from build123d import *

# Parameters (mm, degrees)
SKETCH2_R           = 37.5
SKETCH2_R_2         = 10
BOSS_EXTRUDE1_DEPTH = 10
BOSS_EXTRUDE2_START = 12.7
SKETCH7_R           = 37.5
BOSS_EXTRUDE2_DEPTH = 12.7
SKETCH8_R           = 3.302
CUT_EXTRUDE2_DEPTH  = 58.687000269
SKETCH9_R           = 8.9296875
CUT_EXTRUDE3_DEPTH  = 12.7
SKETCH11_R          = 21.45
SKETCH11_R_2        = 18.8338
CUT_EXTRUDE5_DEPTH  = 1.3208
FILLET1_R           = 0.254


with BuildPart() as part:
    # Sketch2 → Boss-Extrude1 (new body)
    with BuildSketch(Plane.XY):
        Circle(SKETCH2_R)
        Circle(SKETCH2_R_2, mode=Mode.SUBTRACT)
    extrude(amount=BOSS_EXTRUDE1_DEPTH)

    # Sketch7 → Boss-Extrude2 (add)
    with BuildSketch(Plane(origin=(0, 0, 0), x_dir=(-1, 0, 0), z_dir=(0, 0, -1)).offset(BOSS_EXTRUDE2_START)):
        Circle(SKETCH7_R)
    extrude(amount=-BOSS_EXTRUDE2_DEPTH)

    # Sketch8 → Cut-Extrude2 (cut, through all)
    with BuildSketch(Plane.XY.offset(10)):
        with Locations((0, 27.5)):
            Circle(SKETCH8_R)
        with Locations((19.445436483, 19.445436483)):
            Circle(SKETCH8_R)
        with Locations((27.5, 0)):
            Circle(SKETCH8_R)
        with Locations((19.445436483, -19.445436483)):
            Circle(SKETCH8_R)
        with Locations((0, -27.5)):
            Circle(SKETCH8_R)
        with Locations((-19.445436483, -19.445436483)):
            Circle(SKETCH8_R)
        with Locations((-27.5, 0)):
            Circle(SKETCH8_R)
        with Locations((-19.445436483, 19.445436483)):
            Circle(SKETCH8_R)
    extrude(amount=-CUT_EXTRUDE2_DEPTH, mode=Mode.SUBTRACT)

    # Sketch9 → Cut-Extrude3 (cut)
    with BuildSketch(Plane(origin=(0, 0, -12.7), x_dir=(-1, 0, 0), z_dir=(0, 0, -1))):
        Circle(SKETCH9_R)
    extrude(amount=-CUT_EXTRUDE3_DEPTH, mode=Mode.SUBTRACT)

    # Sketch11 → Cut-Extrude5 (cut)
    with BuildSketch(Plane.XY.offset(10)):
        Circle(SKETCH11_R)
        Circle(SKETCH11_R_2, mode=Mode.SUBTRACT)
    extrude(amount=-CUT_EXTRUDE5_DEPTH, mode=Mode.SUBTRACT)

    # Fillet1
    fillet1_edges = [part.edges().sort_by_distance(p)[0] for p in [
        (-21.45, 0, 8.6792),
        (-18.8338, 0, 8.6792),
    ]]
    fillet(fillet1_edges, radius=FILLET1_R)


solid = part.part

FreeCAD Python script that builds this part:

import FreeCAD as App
import Part
import Sketcher
from FreeCAD import Vector
Q = App.Units.Quantity


def edges_at(feature, points):
    """Names of the edges that pass closest to the given points."""
    edges = feature.Shape.Edges
    near = lambda p: min(range(len(edges)), key=lambda i: edges[i].distToShape(Part.Vertex(*p))[0])
    return sorted({f"Edge{near(p) + 1}" for p in points})

doc = App.newDocument("Part")
params = doc.addObject("Spreadsheet::Sheet", "Params")
for row, (alias, value) in enumerate([
    ("pad1_length", "10 mm"),
    ("pad2_length", "0.5 in"),
    ("sketch3_diameter", "0.26 in"),
    ("sketch4_diameter", "0.703125 in"),
    ("pocket2_length", "0.5 in"),
    ("pocket3_length", "0.052 in"),
    ("fillet_radius", "0.01 in"),
], start=1):
    params.set(f"A{row}", alias)
    params.set(f"B{row}", "=" + value)
    params.setAlias(f"B{row}", alias)

body = doc.addObject("PartDesign::Body", "Body")

sketch1 = doc.addObject("Sketcher::SketchObject", "Sketch")
body.addObject(sketch1)
sketch1.AttachmentSupport = (doc.XY_Plane, [""])
sketch1.MapMode = "FlatFace"
sketch1.addGeometry(Part.Circle(Vector(0, 0, 0), Vector(0, 0, 1), 37.5), False)
sketch1.addGeometry(Part.Circle(Vector(0, 0, 0), Vector(0, 0, 1), 10), False)
sketch1.addConstraint(Sketcher.Constraint("Coincident", 0, 3, -1, 1))
sketch1.addConstraint(Sketcher.Constraint("Coincident", 1, 3, -1, 1))
sketch1.addConstraint(Sketcher.Constraint("Diameter", 0, Q("75 mm")))
sketch1.addConstraint(Sketcher.Constraint("Diameter", 1, Q("20 mm")))
pad1 = doc.addObject("PartDesign::Pad", "Pad")
body.addObject(pad1)
pad1.Profile = sketch1
pad1.setExpression("Length", "Params.pad1_length")

sketch2 = doc.addObject("Sketcher::SketchObject", "Sketch001")
body.addObject(sketch2)
sketch2.AttachmentSupport = (doc.XY_Plane, [""])
sketch2.MapMode = "FlatFace"
sketch2.AttachmentOffset = App.Placement(Vector(0, 0, -0.5 * 25.4), App.Rotation())
sketch2.addGeometry(Part.Circle(Vector(0, 0, 0), Vector(0, 0, 1), 37.5), False)
sketch2.addConstraint(Sketcher.Constraint("Coincident", 0, 3, -1, 1))
sketch2.addConstraint(Sketcher.Constraint("Diameter", 0, Q("75 mm")))
pad2 = doc.addObject("PartDesign::Pad", "Pad001")
body.addObject(pad2)
pad2.Profile = sketch2
pad2.setExpression("Length", "Params.pad2_length")

sketch3 = doc.addObject("Sketcher::SketchObject", "Sketch002")
body.addObject(sketch3)
sketch3.AttachmentSupport = (doc.XY_Plane, [""])
sketch3.MapMode = "FlatFace"
sketch3.AttachmentOffset = App.Placement(Vector(0, 0, 10), App.Rotation())
sketch3.addGeometry(Part.Circle(Vector(0, 27.5, 0), Vector(0, 0, 1), 3.302), False)
sketch3.addGeometry(Part.Circle(Vector(19.445436, 19.445436, 0), Vector(0, 0, 1), 3.302), False)
sketch3.addGeometry(Part.Circle(Vector(27.5, 0, 0), Vector(0, 0, 1), 3.302), False)
sketch3.addGeometry(Part.Circle(Vector(19.445436, -19.445436, 0), Vector(0, 0, 1), 3.302), False)
sketch3.addGeometry(Part.Circle(Vector(0, -27.5, 0), Vector(0, 0, 1), 3.302), False)
sketch3.addGeometry(Part.Circle(Vector(-19.445436, -19.445436, 0), Vector(0, 0, 1), 3.302), False)
sketch3.addGeometry(Part.Circle(Vector(-27.5, 0, 0), Vector(0, 0, 1), 3.302), False)
sketch3.addGeometry(Part.Circle(Vector(-19.445436, 19.445436, 0), Vector(0, 0, 1), 3.302), False)
sketch3.addConstraint(Sketcher.Constraint("Equal", 0, 1))
sketch3.addConstraint(Sketcher.Constraint("Equal", 1, 2))
sketch3.addConstraint(Sketcher.Constraint("Equal", 2, 3))
sketch3.addConstraint(Sketcher.Constraint("Equal", 3, 4))
sketch3.addConstraint(Sketcher.Constraint("Equal", 4, 5))
sketch3.addConstraint(Sketcher.Constraint("Equal", 5, 6))
sketch3.addConstraint(Sketcher.Constraint("Equal", 6, 7))
sketch3.addConstraint(Sketcher.Constraint("Symmetric", 0, 3, 4, 3, -1, 1))
sketch3.addConstraint(Sketcher.Constraint("Symmetric", 1, 3, 5, 3, -1, 1))
sketch3.addConstraint(Sketcher.Constraint("Symmetric", 2, 3, 6, 3, -1, 1))
sketch3.addConstraint(Sketcher.Constraint("Symmetric", 3, 3, 7, 3, -1, 1))
sketch3.addConstraint(Sketcher.Constraint("Symmetric", 3, 3, 5, 3, -2))
sketch3.addConstraint(Sketcher.Constraint("PointOnObject", 0, 3, -2))
sketch3.addConstraint(Sketcher.Constraint("PointOnObject", 2, 3, -1))
sketch3.addConstraint(Sketcher.Constraint("Diameter", 0, Q("0.26 in")))
sketch3.addConstraint(Sketcher.Constraint("DistanceY", -1, 1, 0, 3, Q("27.5 mm")))
sketch3.addConstraint(Sketcher.Constraint("DistanceX", -1, 1, 2, 3, Q("27.5 mm")))
sketch3.addConstraint(Sketcher.Constraint("DistanceX", -1, 1, 1, 3, Q("19.445436 mm")))
sketch3.addConstraint(Sketcher.Constraint("DistanceY", -1, 1, 1, 3, Q("19.445436 mm")))
sketch3.setExpression("Constraints[14]", "Params.sketch3_diameter")
pocket1 = doc.addObject("PartDesign::Pocket", "Pocket")
body.addObject(pocket1)
pocket1.Profile = sketch3
pocket1.Type = "ThroughAll"

sketch4 = doc.addObject("Sketcher::SketchObject", "Sketch003")
body.addObject(sketch4)
sketch4.AttachmentSupport = (doc.XY_Plane, [""])
sketch4.MapMode = "FlatFace"
sketch4.AttachmentOffset = App.Placement(Vector(0, 0, -0.5 * 25.4), App.Rotation())
sketch4.addGeometry(Part.Circle(Vector(0, 0, 0), Vector(0, 0, 1), 8.929688), False)
sketch4.addConstraint(Sketcher.Constraint("Coincident", 0, 3, -1, 1))
sketch4.addConstraint(Sketcher.Constraint("Diameter", 0, Q("0.703125 in")))
sketch4.setExpression("Constraints[1]", "Params.sketch4_diameter")
pocket2 = doc.addObject("PartDesign::Pocket", "Pocket001")
body.addObject(pocket2)
pocket2.Profile = sketch4
pocket2.setExpression("Length", "Params.pocket2_length")
pocket2.Reversed = True

sketch5 = doc.addObject("Sketcher::SketchObject", "Sketch004")
body.addObject(sketch5)
sketch5.AttachmentSupport = (doc.XY_Plane, [""])
sketch5.MapMode = "FlatFace"
sketch5.AttachmentOffset = App.Placement(Vector(0, 0, 10), App.Rotation())
sketch5.addGeometry(Part.Circle(Vector(0, 0, 0), Vector(0, 0, 1), 21.45), False)
sketch5.addGeometry(Part.Circle(Vector(0, 0, 0), Vector(0, 0, 1), 18.8338), False)
sketch5.addConstraint(Sketcher.Constraint("Coincident", 0, 3, -1, 1))
sketch5.addConstraint(Sketcher.Constraint("Coincident", 1, 3, -1, 1))
sketch5.addConstraint(Sketcher.Constraint("Diameter", 0, Q("42.9 mm")))
sketch5.addConstraint(Sketcher.Constraint("Diameter", 1, Q("37.6676 mm")))
pocket3 = doc.addObject("PartDesign::Pocket", "Pocket002")
body.addObject(pocket3)
pocket3.Profile = sketch5
pocket3.setExpression("Length", "Params.pocket3_length")
doc.recompute()

fillet = doc.addObject("PartDesign::Fillet", "Fillet")
body.addObject(fillet)
fillet.Base = (pocket3, edges_at(pocket3, [(-21.45, 0, 8.679), (-18.834, 0, 8.679)]))
fillet.setExpression("Radius", "Params.fillet_radius")

doc.recompute()
